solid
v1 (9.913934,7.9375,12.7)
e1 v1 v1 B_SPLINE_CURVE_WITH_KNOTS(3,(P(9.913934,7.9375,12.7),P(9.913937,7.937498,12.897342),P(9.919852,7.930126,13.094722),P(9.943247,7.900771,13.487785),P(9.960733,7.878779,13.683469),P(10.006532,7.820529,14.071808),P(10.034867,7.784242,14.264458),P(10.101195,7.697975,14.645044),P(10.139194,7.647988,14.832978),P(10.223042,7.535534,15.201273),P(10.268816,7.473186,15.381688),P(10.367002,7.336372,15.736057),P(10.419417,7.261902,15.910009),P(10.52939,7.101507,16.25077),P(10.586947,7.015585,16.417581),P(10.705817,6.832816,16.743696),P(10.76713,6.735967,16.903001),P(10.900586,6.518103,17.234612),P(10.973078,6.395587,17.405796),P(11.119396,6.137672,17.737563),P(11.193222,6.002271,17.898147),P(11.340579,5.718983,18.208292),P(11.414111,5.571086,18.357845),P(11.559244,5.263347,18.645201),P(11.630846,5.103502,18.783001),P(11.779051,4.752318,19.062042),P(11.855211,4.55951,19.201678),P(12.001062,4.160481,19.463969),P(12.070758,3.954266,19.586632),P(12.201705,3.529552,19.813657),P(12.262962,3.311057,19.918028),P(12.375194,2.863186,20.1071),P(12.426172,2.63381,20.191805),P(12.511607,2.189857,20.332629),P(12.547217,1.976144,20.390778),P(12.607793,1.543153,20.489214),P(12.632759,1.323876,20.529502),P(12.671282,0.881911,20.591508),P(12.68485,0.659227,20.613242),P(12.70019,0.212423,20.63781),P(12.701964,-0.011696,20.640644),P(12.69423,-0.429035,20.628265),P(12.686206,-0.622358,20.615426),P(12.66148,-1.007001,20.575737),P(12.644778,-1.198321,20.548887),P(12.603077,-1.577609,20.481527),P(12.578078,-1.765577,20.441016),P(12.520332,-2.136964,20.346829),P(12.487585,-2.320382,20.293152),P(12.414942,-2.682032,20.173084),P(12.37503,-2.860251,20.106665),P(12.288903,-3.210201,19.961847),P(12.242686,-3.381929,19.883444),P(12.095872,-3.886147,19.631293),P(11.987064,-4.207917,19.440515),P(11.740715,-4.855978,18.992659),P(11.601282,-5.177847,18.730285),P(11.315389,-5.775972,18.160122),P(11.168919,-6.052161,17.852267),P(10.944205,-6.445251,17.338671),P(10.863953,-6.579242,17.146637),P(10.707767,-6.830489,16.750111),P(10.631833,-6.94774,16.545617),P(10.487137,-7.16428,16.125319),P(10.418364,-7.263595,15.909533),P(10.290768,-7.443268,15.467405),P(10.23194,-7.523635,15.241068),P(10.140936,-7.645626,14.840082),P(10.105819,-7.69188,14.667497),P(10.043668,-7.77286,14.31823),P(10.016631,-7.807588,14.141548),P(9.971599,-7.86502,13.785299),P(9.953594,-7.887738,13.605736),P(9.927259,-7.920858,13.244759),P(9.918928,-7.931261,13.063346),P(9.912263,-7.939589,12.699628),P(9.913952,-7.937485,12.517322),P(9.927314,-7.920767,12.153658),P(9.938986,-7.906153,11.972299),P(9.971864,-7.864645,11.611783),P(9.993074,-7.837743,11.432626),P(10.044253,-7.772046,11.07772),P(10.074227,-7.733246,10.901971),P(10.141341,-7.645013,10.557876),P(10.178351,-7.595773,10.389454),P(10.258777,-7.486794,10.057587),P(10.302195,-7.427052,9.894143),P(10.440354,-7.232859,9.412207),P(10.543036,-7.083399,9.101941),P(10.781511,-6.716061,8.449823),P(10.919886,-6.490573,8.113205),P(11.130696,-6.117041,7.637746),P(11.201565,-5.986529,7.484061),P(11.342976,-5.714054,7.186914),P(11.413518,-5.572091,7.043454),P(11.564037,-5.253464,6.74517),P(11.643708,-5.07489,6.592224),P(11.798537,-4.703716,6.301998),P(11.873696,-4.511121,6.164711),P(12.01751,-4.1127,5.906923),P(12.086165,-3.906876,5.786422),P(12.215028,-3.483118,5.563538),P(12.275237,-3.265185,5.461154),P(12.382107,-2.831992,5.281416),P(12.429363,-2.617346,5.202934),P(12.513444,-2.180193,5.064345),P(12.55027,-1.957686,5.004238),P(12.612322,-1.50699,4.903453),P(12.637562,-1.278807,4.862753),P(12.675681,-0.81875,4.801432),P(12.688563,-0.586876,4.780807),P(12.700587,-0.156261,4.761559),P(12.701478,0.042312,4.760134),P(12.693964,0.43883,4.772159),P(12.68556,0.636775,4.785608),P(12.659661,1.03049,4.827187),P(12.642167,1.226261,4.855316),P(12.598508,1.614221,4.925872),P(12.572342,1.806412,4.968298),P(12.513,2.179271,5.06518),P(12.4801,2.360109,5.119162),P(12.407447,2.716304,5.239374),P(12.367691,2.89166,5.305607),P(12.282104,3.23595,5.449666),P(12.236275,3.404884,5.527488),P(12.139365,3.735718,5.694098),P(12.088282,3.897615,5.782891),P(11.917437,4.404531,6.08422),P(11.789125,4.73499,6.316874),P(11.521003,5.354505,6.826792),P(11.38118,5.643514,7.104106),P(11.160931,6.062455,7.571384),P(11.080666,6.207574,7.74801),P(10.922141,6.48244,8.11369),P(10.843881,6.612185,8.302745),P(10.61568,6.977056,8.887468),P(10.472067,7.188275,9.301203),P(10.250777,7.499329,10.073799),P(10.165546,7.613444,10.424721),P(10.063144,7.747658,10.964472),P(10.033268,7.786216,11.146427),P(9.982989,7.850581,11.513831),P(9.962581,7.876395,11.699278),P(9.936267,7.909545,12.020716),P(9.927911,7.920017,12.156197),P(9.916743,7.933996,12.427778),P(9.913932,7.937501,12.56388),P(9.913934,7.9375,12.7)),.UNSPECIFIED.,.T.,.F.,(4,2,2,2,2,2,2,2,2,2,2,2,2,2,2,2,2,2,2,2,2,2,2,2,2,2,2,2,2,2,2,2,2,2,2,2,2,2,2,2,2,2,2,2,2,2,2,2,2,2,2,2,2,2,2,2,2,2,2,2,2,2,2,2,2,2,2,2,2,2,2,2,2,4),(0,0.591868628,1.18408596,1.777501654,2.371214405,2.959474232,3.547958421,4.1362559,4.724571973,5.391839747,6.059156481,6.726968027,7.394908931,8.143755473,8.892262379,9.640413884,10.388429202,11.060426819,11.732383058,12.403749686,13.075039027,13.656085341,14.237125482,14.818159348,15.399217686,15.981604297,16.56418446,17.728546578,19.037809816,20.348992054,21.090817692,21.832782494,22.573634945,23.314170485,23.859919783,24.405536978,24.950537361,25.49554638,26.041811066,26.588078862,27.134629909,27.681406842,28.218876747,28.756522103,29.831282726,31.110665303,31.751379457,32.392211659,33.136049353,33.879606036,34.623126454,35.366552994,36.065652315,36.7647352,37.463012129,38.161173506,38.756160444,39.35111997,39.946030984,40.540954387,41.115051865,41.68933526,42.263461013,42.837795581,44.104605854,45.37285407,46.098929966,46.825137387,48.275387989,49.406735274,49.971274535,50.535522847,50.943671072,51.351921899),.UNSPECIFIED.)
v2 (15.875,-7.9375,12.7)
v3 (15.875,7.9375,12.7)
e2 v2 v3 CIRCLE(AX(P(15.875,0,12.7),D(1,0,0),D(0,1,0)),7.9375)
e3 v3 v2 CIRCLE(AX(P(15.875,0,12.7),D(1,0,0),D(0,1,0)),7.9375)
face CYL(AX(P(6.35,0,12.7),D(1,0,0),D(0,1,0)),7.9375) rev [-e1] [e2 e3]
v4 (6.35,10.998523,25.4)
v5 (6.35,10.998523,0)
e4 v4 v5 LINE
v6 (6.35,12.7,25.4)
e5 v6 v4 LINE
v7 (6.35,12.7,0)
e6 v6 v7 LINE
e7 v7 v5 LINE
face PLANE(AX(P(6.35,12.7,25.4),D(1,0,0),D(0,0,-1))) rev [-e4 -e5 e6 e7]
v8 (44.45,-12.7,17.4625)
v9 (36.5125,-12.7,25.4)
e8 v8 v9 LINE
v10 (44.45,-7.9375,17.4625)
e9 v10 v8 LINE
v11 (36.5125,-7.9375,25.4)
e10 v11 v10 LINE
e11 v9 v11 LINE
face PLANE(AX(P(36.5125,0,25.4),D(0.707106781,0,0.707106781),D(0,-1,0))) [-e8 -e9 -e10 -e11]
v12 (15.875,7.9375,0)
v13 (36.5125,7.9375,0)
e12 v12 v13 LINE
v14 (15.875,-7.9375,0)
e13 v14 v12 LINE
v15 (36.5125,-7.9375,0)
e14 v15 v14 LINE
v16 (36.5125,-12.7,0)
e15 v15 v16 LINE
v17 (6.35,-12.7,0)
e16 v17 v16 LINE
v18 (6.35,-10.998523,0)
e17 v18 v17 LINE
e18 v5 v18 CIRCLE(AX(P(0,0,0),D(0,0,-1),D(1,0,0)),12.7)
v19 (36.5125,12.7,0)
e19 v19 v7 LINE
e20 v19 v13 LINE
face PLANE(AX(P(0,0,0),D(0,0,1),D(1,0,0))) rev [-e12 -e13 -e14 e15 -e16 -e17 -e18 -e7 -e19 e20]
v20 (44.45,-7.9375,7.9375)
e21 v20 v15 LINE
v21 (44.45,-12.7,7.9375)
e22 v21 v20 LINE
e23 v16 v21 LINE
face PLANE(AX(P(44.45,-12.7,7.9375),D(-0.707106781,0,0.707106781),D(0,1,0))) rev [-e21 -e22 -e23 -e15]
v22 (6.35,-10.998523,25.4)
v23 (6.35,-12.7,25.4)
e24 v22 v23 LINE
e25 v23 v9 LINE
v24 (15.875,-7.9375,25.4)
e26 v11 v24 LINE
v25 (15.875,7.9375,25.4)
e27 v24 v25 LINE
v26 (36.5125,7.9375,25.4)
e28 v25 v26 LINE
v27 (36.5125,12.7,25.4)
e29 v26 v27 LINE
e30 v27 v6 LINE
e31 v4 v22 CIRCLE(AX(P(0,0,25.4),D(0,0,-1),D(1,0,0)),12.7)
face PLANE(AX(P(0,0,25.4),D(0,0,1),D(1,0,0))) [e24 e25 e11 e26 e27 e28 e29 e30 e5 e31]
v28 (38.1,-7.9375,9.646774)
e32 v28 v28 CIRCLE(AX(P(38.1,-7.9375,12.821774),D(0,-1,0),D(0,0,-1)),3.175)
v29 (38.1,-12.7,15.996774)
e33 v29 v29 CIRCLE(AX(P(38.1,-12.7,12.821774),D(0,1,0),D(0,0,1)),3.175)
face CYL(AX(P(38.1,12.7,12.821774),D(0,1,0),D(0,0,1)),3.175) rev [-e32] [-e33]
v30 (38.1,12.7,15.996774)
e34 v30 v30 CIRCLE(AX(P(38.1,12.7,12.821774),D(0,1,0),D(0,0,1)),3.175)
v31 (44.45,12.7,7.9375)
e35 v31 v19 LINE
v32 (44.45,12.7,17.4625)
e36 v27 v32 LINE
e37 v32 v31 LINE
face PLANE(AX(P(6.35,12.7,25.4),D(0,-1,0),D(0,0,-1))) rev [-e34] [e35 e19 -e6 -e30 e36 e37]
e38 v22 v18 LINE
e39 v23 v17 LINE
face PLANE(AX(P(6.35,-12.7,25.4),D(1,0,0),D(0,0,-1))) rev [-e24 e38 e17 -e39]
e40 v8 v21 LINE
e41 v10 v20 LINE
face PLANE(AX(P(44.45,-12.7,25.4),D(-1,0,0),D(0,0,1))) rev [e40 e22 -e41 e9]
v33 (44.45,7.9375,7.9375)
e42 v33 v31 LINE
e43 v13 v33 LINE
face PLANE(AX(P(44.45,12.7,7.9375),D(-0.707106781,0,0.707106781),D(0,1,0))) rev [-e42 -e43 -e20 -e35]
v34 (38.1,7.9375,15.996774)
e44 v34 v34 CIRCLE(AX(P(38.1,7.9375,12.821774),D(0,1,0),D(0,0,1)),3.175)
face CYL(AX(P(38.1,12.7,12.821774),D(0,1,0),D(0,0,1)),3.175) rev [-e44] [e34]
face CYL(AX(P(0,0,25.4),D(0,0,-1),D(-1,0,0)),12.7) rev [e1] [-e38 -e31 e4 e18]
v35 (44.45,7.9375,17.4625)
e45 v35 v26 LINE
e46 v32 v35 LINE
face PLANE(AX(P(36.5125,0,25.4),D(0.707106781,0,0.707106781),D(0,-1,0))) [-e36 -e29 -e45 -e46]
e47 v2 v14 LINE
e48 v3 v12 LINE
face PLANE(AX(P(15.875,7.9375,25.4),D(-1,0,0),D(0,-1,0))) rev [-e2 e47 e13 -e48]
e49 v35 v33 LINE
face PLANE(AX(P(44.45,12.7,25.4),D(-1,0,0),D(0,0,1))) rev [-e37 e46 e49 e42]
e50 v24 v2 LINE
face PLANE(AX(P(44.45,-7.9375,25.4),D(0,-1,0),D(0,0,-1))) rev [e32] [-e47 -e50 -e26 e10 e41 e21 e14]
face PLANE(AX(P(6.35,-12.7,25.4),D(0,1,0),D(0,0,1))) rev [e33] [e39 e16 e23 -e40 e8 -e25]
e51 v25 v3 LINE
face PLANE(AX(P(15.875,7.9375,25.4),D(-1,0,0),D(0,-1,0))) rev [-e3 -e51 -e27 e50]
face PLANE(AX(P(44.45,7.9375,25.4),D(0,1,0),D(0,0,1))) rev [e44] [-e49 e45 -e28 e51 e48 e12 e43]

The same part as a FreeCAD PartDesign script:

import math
import FreeCAD as App
import Part
import Sketcher
Q = App.Units.Quantity


def edges_at(feature, points):
    """Names of the edges that pass closest to the given points."""
    edges = feature.Shape.Edges
    near = lambda p: min(range(len(edges)), key=lambda i: edges[i].distToShape(Part.Vertex(*p))[0])
    return sorted({f"Edge{near(p) + 1}" for p in points})

doc = App.newDocument("Part")
params = doc.addObject("Spreadsheet::Sheet", "Params")
for row, (alias, value) in enumerate([
    ("sketch1_radius", "0.5 in"),
    ("sketch1_width", "1.5 in"),
    ("sketch1_width2", "1.125 in"),
    ("sketch1_height", "0.1875 in"),
    ("pad1_length", "1 in"),
    ("sketch2_diameter", "0.25 in"),
    ("hole_diameter", "0.25 in"),
    ("chamfer_size", "0.3125 in"),
    ("sketch3_diameter", "0.625 in"),
], start=1):
    params.set(f"A{row}", alias)
    params.set(f"B{row}", "=" + value)
    params.setAlias(f"B{row}", alias)

body = doc.addObject("PartDesign::Body", "Body")

# Sketch on XY plane
sketch1 = body.newObject("Sketcher::SketchObject", "Sketch")
sketch1.AttachmentSupport = (doc.getObject("XY_Plane"), [""])
sketch1.MapMode = "FlatFace"
sketch1.addGeometry([
    Part.LineSegment(App.Vector(44.5, 12.7, 0), App.Vector(6.3, 12.7, 0)),  # 0
    Part.LineSegment(App.Vector(6.3, 12.7, 0), App.Vector(6.3, 11, 0)),  # 1
    Part.ArcOfCircle(Part.Circle(App.Vector(0, 0, 0), App.Vector(0, 0, 1), 12.7), math.radians(-60), math.radians(60)),  # 2
    Part.LineSegment(App.Vector(6.3, -11, 0), App.Vector(6.3, -12.7, 0)),  # 3
    Part.LineSegment(App.Vector(6.3, -12.7, 0), App.Vector(44.5, -12.7, 0)),  # 4
    Part.LineSegment(App.Vector(44.5, -12.7, 0), App.Vector(44.5, -7.9, 0)),  # 5
    Part.LineSegment(App.Vector(44.5, -7.9, 0), App.Vector(15.9, -7.9, 0)),  # 6
    Part.LineSegment(App.Vector(15.9, -7.9, 0), App.Vector(15.9, 7.9, 0)),  # 7
    Part.LineSegment(App.Vector(15.9, 7.9, 0), App.Vector(44.5, 7.9, 0)),  # 8
    Part.LineSegment(App.Vector(44.5, 7.9, 0), App.Vector(44.5, 12.7, 0)),  # 9
], False)
sketch1.addConstraint([
    Sketcher.Constraint("Coincident", 0, 2, 1, 1),
    Sketcher.Constraint("Coincident", 1, 2, 2, 2),
    Sketcher.Constraint("Coincident", 2, 1, 3, 1),
    Sketcher.Constraint("Coincident", 3, 2, 4, 1),
    Sketcher.Constraint("Coincident", 4, 2, 5, 1),
    Sketcher.Constraint("Coincident", 5, 2, 6, 1),
    Sketcher.Constraint("Coincident", 6, 2, 7, 1),
    Sketcher.Constraint("Coincident", 7, 2, 8, 1),
    Sketcher.Constraint("Coincident", 8, 2, 9, 1),
    Sketcher.Constraint("Coincident", 9, 2, 0, 1),
    Sketcher.Constraint("Horizontal", 0),
    Sketcher.Constraint("Vertical", 1),
    Sketcher.Constraint("Vertical", 3),
    Sketcher.Constraint("Horizontal", 4),
    Sketcher.Constraint("Vertical", 5),
    Sketcher.Constraint("Horizontal", 6),
    Sketcher.Constraint("Vertical", 7),
    Sketcher.Constraint("Horizontal", 8),
    Sketcher.Constraint("Vertical", 9),
    Sketcher.Constraint("Coincident", 2, 3, -1, 1),
    Sketcher.Constraint("Symmetric", 0, 2, 3, 2, -1),
    Sketcher.Constraint("Symmetric", 5, 2, 8, 2, -1),
    Sketcher.Constraint("Radius", 2, Q("0.5 in")),
    Sketcher.Constraint("DistanceX", 0, 2, 0, 1, Q("1.5 in")),
    Sketcher.Constraint("DistanceY", 3, 2, 0, 2, Q("1 in")),
    Sketcher.Constraint("DistanceX", 6, 2, 6, 1, Q("1.125 in")),
    Sketcher.Constraint("DistanceY", 5, 1, 5, 2, Q("0.1875 in")),
    Sketcher.Constraint("DistanceX", -1, 1, 0, 2, Q("0.25 in")),
])
sketch1.setExpression("Constraints[22]", "Params.sketch1_radius")
sketch1.setExpression("Constraints[23]", "Params.sketch1_width")
sketch1.setExpression("Constraints[25]", "Params.sketch1_width2")
sketch1.setExpression("Constraints[26]", "Params.sketch1_height")
pad1 = body.newObject("PartDesign::Pad", "Pad")
pad1.Profile = sketch1
pad1.setExpression("Length", "Params.pad1_length")

# Sketch on XZ plane
sketch2 = body.newObject("Sketcher::SketchObject", "Sketch001")
sketch2.AttachmentSupport = (doc.getObject("XZ_Plane"), [""])
sketch2.MapMode = "FlatFace"
sketch2.AttachmentOffset = App.Placement(App.Vector(0, 0, -0.5 * 25.4), App.Rotation())
sketch2.addGeometry(Part.Circle(App.Vector(38.1, 12.8, 0), App.Vector(0, 0, 1), 3.2), False)
sketch2.addConstraint([
    Sketcher.Constraint("Diameter", 0, Q("0.25 in")),
    Sketcher.Constraint("DistanceX", -1, 1, 0, 3, Q("1.5 in")),
    Sketcher.Constraint("DistanceY", -1, 1, 0, 3, 12.821774),
])
sketch2.setExpression("Constraints[0]", "Params.sketch2_diameter")
doc.recompute()
hole = body.newObject("PartDesign::Hole", "Hole")
hole.Profile = sketch2
hole.ThreadType = "None"
hole.setExpression("Diameter", "Params.hole_diameter")
hole.DepthType = "ThroughAll"
hole.Reversed = True
doc.recompute()

chamfer = body.newObject("PartDesign::Chamfer", "Chamfer")
chamfer.Base = (hole, edges_at(hole, [
    (44.45, 10.319, 0),
    (44.45, 10.319, 25.4),
    (44.45, -10.319, 25.4),
    (44.45, -10.319, 0),
]))
chamfer.setExpression("Size", "Params.chamfer_size")

# Sketch on YZ plane
sketch3 = body.newObject("Sketcher::SketchObject", "Sketch002")
sketch3.AttachmentSupport = (doc.getObject("YZ_Plane"), [""])
sketch3.MapMode = "FlatFace"
sketch3.AttachmentOffset = App.Placement(App.Vector(0, 0, 0.625 * 25.4), App.Rotation())
sketch3.addGeometry(Part.Circle(App.Vector(0, 13, 0), App.Vector(0, 0, 1), 8), False)
sketch3.addConstraint([
    Sketcher.Constraint("PointOnObject", 0, 3, -2),
    Sketcher.Constraint("Diameter", 0, Q("0.625 in")),
    Sketcher.Constraint("DistanceY", -1, 1, 0, 3, Q("0.5 in")),
])
sketch3.setExpression("Constraints[1]", "Params.sketch3_diameter")
pocket1 = body.newObject("PartDesign::Pocket", "Pocket")
pocket1.Profile = sketch3
pocket1.Type = "ThroughAll"

doc.recompute()
